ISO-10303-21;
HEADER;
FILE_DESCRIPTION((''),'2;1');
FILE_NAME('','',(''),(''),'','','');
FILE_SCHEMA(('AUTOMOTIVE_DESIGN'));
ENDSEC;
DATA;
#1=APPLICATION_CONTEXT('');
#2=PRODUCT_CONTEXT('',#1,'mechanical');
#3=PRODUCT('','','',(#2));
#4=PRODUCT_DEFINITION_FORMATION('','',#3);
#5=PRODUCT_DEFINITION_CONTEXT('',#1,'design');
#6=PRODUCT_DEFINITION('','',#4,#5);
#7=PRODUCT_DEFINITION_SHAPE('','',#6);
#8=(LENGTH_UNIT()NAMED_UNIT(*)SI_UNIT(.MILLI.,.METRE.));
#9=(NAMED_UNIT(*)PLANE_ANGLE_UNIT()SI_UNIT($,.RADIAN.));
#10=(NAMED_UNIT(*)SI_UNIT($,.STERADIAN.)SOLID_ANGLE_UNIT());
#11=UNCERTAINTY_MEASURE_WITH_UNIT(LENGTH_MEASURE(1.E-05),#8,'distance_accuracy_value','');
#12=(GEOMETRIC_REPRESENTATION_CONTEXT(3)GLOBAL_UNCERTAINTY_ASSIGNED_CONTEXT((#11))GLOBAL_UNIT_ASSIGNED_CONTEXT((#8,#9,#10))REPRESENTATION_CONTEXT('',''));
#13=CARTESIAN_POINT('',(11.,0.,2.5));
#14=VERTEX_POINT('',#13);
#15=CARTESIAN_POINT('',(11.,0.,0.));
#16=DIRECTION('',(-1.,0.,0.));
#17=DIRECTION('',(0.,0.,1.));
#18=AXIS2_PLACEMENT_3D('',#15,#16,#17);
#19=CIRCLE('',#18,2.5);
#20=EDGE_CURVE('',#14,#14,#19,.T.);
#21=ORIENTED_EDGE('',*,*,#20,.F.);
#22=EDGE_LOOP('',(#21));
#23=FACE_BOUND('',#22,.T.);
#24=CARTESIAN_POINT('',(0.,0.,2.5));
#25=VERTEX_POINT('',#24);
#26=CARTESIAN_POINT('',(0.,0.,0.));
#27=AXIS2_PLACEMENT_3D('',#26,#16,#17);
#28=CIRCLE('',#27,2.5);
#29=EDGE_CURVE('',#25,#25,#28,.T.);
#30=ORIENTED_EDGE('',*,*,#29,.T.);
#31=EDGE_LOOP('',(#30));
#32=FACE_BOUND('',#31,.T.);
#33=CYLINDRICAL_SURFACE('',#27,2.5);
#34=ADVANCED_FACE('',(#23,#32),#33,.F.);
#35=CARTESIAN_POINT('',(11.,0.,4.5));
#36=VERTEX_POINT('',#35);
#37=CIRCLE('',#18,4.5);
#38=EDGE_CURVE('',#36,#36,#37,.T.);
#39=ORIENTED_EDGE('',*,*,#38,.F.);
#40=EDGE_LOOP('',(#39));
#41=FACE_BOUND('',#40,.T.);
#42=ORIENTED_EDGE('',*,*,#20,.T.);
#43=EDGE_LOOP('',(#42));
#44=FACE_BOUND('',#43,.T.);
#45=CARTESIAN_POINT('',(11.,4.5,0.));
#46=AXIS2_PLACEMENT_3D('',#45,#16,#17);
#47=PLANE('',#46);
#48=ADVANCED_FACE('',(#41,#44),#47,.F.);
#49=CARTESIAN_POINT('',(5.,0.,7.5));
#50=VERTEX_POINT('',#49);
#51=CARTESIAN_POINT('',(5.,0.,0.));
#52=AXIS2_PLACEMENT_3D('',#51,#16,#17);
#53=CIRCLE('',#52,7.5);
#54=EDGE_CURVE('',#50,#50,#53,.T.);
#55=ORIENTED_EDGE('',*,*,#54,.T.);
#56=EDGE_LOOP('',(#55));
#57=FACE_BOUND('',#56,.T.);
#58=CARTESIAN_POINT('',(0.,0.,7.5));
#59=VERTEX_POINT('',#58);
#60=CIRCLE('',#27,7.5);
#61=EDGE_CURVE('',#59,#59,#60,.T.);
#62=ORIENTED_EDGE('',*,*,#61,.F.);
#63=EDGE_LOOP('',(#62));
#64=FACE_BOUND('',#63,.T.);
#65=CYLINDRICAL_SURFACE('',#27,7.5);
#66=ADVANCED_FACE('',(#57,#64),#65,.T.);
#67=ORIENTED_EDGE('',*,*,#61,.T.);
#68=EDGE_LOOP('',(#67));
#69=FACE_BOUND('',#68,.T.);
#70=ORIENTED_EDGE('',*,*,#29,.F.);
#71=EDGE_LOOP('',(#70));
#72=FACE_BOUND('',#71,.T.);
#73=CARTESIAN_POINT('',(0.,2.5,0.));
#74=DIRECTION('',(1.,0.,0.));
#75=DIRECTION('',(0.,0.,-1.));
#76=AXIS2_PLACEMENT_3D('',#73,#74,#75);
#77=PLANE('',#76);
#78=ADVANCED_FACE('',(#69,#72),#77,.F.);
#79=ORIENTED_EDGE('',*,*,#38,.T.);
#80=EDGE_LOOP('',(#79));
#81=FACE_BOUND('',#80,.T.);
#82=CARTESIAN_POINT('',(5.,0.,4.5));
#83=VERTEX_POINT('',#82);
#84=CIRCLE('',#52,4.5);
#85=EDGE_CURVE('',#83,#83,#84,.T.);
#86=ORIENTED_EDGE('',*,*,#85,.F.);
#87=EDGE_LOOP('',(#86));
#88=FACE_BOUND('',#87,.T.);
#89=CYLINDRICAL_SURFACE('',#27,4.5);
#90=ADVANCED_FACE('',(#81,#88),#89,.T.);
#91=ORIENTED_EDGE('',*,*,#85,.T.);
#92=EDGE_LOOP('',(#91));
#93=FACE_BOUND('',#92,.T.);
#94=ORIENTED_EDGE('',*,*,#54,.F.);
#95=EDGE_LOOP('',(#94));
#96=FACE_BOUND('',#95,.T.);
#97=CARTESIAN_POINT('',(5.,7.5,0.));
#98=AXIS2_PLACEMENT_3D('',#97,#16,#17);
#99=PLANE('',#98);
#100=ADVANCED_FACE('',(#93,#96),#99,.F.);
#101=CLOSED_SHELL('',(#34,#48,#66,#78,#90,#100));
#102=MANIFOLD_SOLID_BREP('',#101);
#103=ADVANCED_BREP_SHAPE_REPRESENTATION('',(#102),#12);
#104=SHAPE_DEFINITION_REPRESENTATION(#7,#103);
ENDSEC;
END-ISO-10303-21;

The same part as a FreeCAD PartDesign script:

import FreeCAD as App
import Part
import Sketcher
from FreeCAD import Vector
Q = App.Units.Quantity

doc = App.newDocument("Part")
body = doc.addObject("PartDesign::Body", "Body")

sketch1 = body.newObject("Sketcher::SketchObject", "Sketch")
sketch1.AttachmentSupport = (doc.getObject("XY_Plane"), [""])
sketch1.MapMode = "FlatFace"
sketch1.addGeometry(Part.LineSegment(Vector(0, 7.5, 0), Vector(0, 2.5, 0)), False)
sketch1.addGeometry(Part.LineSegment(Vector(0, 2.5, 0), Vector(11, 2.5, 0)), False)
sketch1.addGeometry(Part.LineSegment(Vector(11, 2.5, 0), Vector(11, 4.5, 0)), False)
sketch1.addGeometry(Part.LineSegment(Vector(11, 4.5, 0), Vector(5, 4.5, 0)), False)
sketch1.addGeometry(Part.LineSegment(Vector(5, 4.5, 0), Vector(5, 7.5, 0)), False)
sketch1.addGeometry(Part.LineSegment(Vector(5, 7.5, 0), Vector(0, 7.5, 0)), False)
sketch1.addConstraint(Sketcher.Constraint("Coincident", 0, 2, 1, 1))
sketch1.addConstraint(Sketcher.Constraint("Coincident", 1, 2, 2, 1))
sketch1.addConstraint(Sketcher.Constraint("Coincident", 2, 2, 3, 1))
sketch1.addConstraint(Sketcher.Constraint("Coincident", 3, 2, 4, 1))
sketch1.addConstraint(Sketcher.Constraint("Coincident", 4, 2, 5, 1))
sketch1.addConstraint(Sketcher.Constraint("Coincident", 5, 2, 0, 1))
sketch1.addConstraint(Sketcher.Constraint("Vertical", 0))
sketch1.addConstraint(Sketcher.Constraint("Horizontal", 1))
sketch1.addConstraint(Sketcher.Constraint("Vertical", 2))
sketch1.addConstraint(Sketcher.Constraint("Horizontal", 3))
sketch1.addConstraint(Sketcher.Constraint("Vertical", 4))
sketch1.addConstraint(Sketcher.Constraint("Horizontal", 5))
sketch1.addConstraint(Sketcher.Constraint("PointOnObject", 0, 2, -2))
sketch1.addConstraint(Sketcher.Constraint("Equal", 5, 0))
sketch1.addConstraint(Sketcher.Constraint("DistanceX", 1, 1, 1, 2, Q("11 mm")))
sketch1.addConstraint(Sketcher.Constraint("DistanceX", 3, 2, 3, 1, Q("6 mm")))
sketch1.addConstraint(Sketcher.Constraint("DistanceY", 2, 1, 2, 2, Q("2 mm")))
sketch1.addConstraint(Sketcher.Constraint("DistanceY", -1, 1, 0, 2, Q("2.5 mm")))
revolution = body.newObject("PartDesign::Revolution", "Revolution")
revolution.Profile = sketch1
revolution.ReferenceAxis = (sketch1, ["H_Axis"])
revolution.Angle = 360

doc.recompute()
